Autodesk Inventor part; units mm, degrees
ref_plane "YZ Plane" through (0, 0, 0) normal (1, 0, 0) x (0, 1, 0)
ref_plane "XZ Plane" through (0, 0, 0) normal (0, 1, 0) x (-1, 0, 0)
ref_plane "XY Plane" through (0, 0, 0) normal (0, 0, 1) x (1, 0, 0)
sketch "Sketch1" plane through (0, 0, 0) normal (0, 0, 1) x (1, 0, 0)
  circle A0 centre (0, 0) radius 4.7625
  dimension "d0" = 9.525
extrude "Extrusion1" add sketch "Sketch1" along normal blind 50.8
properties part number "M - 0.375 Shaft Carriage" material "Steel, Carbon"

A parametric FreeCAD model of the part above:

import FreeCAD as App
import Part
import Sketcher
Q = App.Units.Quantity

doc = App.newDocument("Part")
body = doc.addObject("PartDesign::Body", "Body")

# Sketch on XY plane
sketch1 = doc.addObject("Sketcher::SketchObject", "Sketch")
body.addObject(sketch1)
sketch1.AttachmentSupport = (doc.XY_Plane, [""])
sketch1.MapMode = "FlatFace"
sketch1.addGeometry(Part.Circle(App.Vector(0, 0, 0), App.Vector(0, 0, 1), 4.8), False)
sketch1.addConstraint([
    Sketcher.Constraint("Coincident", 0, 3, -1, 1),
    Sketcher.Constraint("Diameter", 0, Q("0.375 in")),
])
pad1 = doc.addObject("PartDesign::Pad", "Pad")
body.addObject(pad1)
pad1.Profile = sketch1
pad1.Length = Q("2 in")

doc.recompute()
